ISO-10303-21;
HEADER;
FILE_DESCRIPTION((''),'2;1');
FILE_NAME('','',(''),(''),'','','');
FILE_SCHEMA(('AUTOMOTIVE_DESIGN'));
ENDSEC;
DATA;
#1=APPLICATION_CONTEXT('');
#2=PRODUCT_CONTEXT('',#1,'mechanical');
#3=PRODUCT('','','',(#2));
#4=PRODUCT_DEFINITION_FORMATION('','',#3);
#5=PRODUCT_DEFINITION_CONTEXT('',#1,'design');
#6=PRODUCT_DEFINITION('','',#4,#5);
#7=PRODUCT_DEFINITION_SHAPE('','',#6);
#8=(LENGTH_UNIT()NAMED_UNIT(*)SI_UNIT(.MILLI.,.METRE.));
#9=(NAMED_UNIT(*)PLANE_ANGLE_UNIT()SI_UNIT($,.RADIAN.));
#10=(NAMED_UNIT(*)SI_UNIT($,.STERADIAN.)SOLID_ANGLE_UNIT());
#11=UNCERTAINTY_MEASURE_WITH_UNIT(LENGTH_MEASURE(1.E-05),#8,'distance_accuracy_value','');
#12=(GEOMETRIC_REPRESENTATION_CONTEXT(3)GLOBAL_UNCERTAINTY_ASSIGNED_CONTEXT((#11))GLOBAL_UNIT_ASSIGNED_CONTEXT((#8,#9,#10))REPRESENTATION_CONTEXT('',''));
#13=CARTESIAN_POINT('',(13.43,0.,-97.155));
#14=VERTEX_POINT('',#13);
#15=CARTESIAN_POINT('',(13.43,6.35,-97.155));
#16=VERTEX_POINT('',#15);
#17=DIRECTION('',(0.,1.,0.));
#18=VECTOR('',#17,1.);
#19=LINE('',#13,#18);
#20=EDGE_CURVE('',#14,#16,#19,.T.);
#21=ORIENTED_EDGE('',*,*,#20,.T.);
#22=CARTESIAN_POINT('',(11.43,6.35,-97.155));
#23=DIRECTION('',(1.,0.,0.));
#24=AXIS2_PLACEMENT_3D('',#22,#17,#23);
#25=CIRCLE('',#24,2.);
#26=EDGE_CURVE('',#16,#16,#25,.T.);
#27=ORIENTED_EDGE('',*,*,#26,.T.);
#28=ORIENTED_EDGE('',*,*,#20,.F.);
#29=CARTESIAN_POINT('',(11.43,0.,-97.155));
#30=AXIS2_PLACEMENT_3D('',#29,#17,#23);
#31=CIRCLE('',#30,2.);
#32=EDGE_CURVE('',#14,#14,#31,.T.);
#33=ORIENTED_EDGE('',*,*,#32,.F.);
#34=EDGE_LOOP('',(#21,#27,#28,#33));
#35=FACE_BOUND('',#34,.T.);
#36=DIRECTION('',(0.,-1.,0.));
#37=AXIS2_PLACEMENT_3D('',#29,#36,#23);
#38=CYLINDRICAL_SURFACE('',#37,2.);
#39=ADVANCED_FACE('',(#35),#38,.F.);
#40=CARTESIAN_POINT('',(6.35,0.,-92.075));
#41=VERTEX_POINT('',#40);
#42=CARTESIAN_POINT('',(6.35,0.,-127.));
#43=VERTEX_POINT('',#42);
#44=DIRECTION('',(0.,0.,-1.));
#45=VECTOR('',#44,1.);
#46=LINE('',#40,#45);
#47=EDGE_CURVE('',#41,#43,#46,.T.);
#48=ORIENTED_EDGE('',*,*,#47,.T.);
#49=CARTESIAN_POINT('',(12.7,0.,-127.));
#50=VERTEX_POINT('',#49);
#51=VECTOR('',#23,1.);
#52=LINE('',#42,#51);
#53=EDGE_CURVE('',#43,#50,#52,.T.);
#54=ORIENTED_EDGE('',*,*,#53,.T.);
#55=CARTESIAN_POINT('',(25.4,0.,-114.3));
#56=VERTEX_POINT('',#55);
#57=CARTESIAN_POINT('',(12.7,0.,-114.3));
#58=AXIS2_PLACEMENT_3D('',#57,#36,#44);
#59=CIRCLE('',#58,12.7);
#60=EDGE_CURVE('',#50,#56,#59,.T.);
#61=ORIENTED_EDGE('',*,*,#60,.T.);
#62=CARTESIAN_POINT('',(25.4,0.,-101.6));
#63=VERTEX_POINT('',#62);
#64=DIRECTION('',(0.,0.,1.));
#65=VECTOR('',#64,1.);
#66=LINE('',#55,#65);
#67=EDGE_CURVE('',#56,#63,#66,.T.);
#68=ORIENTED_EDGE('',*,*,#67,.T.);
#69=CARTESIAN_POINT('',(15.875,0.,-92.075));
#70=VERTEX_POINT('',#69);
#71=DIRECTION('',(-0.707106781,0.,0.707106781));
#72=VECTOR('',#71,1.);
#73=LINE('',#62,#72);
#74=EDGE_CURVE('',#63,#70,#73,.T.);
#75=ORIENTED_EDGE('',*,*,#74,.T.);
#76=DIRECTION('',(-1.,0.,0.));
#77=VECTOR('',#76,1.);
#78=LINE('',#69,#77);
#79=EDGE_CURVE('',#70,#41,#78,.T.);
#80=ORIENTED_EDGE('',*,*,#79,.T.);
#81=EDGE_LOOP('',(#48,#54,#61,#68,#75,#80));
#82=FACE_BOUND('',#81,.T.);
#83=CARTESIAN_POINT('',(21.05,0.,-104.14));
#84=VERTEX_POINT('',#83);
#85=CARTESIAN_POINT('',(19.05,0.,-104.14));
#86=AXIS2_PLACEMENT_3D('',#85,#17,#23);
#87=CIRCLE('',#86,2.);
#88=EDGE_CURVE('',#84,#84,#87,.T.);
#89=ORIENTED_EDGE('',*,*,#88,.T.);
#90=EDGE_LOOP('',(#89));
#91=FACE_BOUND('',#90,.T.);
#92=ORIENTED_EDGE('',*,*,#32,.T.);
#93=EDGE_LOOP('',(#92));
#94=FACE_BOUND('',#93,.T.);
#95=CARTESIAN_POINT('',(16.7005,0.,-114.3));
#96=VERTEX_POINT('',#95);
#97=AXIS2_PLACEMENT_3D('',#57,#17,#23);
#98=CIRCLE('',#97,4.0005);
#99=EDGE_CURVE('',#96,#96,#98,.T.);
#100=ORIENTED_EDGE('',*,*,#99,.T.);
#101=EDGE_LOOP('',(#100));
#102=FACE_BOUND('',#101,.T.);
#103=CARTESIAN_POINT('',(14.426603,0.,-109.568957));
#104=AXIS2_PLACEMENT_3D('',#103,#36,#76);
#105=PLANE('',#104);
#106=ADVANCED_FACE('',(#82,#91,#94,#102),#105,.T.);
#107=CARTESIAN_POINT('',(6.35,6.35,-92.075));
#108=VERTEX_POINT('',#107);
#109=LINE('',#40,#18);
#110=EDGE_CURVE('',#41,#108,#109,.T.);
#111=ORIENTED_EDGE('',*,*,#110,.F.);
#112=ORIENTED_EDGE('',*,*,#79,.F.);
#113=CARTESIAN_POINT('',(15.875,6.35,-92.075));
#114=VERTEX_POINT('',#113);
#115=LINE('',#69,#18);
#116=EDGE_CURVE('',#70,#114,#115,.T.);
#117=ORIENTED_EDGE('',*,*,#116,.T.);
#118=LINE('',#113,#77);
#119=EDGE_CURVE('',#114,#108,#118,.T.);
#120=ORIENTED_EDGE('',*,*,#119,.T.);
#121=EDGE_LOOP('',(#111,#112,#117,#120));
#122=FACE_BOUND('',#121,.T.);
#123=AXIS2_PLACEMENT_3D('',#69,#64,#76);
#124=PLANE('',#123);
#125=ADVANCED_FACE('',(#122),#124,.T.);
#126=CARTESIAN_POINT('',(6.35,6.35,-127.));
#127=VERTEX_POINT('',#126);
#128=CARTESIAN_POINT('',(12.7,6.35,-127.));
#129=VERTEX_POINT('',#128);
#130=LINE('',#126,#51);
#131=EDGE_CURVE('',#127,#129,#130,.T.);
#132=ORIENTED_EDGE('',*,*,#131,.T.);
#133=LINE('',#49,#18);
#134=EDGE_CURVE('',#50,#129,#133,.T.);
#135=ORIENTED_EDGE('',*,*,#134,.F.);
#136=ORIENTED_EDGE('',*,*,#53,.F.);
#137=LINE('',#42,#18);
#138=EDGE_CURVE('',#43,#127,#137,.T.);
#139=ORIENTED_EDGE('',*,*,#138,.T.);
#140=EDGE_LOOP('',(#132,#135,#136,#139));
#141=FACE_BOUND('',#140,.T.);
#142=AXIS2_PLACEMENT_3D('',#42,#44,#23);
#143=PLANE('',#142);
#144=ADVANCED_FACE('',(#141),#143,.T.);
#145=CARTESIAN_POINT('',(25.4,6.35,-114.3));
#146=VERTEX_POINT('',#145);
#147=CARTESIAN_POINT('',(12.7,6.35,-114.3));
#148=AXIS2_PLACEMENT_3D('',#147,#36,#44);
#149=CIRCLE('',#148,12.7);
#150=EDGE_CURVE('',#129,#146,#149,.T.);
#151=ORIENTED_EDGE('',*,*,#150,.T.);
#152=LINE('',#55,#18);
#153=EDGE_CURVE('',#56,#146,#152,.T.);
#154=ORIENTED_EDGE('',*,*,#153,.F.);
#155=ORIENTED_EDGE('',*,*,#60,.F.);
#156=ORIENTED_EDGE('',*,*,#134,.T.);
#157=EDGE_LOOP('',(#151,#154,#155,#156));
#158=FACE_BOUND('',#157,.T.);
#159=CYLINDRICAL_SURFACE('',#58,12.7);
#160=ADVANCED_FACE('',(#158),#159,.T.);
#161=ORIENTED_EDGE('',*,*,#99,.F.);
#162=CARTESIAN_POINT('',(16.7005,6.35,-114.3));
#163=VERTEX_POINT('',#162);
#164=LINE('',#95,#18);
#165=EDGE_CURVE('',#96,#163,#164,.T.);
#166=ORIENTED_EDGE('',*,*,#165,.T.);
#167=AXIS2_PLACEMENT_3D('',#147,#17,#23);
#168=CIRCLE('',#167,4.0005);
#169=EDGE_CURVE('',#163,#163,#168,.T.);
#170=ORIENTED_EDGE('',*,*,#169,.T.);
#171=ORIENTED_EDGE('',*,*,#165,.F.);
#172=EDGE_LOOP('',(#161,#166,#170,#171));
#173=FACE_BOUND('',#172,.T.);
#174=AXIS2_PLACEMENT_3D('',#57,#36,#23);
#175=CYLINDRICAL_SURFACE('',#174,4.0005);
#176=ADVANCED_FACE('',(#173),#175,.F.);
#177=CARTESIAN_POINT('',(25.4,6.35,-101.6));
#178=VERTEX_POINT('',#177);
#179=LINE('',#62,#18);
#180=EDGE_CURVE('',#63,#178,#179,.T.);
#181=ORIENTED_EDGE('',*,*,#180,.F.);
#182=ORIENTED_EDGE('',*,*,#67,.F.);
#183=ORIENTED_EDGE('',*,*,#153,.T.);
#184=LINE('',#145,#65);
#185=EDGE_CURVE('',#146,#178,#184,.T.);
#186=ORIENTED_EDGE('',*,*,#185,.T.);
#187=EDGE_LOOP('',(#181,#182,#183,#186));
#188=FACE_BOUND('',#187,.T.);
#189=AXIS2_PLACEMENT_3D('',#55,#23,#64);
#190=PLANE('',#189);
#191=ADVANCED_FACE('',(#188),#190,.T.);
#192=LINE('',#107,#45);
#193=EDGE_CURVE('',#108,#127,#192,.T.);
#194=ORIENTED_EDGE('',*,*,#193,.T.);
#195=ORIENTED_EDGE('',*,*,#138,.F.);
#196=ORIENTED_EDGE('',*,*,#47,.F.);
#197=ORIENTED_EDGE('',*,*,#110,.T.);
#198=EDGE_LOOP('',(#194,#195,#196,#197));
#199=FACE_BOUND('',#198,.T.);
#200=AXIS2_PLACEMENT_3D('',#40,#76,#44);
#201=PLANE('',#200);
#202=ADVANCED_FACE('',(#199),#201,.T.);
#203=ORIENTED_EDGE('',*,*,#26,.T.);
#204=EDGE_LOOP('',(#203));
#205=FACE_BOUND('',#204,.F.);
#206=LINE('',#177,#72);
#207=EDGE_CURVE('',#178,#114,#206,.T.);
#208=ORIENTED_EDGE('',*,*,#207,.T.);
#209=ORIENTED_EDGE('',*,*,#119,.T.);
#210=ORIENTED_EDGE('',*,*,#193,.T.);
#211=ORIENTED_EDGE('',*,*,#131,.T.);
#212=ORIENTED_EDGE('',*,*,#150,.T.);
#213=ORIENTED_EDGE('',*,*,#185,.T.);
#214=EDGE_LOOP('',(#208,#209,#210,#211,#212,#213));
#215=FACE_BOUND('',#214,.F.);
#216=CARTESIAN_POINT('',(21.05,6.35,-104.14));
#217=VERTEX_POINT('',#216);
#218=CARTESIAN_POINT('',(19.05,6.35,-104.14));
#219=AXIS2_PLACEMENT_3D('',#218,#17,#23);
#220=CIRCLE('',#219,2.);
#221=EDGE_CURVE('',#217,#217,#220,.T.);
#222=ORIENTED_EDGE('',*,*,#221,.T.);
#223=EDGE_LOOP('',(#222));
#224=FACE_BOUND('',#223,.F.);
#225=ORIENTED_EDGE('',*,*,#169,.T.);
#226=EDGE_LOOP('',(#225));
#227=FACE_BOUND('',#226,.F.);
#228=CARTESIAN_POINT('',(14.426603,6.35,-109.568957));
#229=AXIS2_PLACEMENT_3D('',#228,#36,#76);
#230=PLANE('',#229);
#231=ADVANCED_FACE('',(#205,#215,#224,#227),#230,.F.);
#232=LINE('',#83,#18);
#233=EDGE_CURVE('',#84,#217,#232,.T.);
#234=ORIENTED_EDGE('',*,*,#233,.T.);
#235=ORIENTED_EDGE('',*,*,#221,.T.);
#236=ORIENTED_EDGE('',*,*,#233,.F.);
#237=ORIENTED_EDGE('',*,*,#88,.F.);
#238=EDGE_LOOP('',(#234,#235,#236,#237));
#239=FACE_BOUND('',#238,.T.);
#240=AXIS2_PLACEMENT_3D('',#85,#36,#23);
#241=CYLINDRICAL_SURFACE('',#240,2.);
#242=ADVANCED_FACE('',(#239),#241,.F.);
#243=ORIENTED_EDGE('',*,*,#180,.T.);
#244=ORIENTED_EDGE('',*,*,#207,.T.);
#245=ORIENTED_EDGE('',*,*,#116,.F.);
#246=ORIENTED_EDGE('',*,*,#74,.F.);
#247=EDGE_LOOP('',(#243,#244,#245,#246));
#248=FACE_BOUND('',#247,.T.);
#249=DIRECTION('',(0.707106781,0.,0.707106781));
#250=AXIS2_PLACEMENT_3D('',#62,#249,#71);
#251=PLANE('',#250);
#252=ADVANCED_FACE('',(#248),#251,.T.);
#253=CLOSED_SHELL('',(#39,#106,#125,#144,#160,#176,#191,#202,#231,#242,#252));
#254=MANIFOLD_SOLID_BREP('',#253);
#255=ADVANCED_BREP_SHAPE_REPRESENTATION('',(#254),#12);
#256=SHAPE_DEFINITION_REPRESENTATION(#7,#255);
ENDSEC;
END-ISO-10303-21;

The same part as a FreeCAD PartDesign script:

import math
import FreeCAD as App
import Part
import Sketcher
from FreeCAD import Vector
Q = App.Units.Quantity

doc = App.newDocument("Part")
body = doc.addObject("PartDesign::Body", "Body")

sketch1 = doc.addObject("Sketcher::SketchObject", "Sketch")
body.addObject(sketch1)
sketch1.AttachmentSupport = (doc.XZ_Plane, [""])
sketch1.MapMode = "FlatFace"
sketch1.addGeometry(Part.LineSegment(Vector(12.7, -127, 0), Vector(6.35, -127, 0)), False)
sketch1.addGeometry(Part.LineSegment(Vector(6.35, -127, 0), Vector(6.35, -92.075, 0)), False)
sketch1.addGeometry(Part.LineSegment(Vector(6.35, -92.075, 0), Vector(15.875, -92.075, 0)), False)
sketch1.addGeometry(Part.LineSegment(Vector(15.875, -92.075, 0), Vector(25.4, -101.6, 0)), False)
sketch1.addGeometry(Part.LineSegment(Vector(25.4, -101.6, 0), Vector(25.4, -114.3, 0)), False)
sketch1.addGeometry(Part.ArcOfCircle(Part.Circle(Vector(12.7, -114.3, 0), Vector(0, 0, 1), 12.7), math.radians(-90), math.radians(0)), False)
sketch1.addGeometry(Part.Circle(Vector(19.05, -104.14, 0), Vector(0, 0, 1), 2), False)
sketch1.addGeometry(Part.Circle(Vector(11.43, -97.155, 0), Vector(0, 0, 1), 2), False)
sketch1.addGeometry(Part.Circle(Vector(12.7, -114.3, 0), Vector(0, 0, 1), 4.0005), False)
sketch1.addConstraint(Sketcher.Constraint("Coincident", 0, 2, 1, 1))
sketch1.addConstraint(Sketcher.Constraint("Coincident", 1, 2, 2, 1))
sketch1.addConstraint(Sketcher.Constraint("Coincident", 2, 2, 3, 1))
sketch1.addConstraint(Sketcher.Constraint("Coincident", 3, 2, 4, 1))
sketch1.addConstraint(Sketcher.Constraint("Tangent", 4, 2, 5, 2))
sketch1.addConstraint(Sketcher.Constraint("Tangent", 5, 1, 0, 1))
sketch1.addConstraint(Sketcher.Constraint("Horizontal", 0))
sketch1.addConstraint(Sketcher.Constraint("Vertical", 1))
sketch1.addConstraint(Sketcher.Constraint("Horizontal", 2))
sketch1.addConstraint(Sketcher.Constraint("Vertical", 4))
sketch1.addConstraint(Sketcher.Constraint("Coincident", 8, 3, 5, 3))
sketch1.addConstraint(Sketcher.Constraint("Equal", 6, 7))
sketch1.addConstraint(Sketcher.Constraint("Radius", 5, Q("0.5 in")))
sketch1.addConstraint(Sketcher.Constraint("Diameter", 8, Q("0.315 in")))
sketch1.addConstraint(Sketcher.Constraint("DistanceY", 4, 2, 4, 1, Q("0.5 in")))
sketch1.addConstraint(Sketcher.Constraint("DistanceY", 0, 2, -1, 1, Q("5 in")))
sketch1.addConstraint(Sketcher.Constraint("DistanceX", -1, 1, 3, 2, Q("1 in")))
sketch1.addConstraint(Sketcher.Constraint("Angle", 3, Q("-45 deg")))
sketch1.addConstraint(Sketcher.Constraint("DistanceX", 0, 2, 0, 1, Q("0.25 in")))
sketch1.addConstraint(Sketcher.Constraint("DistanceY", 6, 3, -1, 1, Q("4.1 in")))
sketch1.addConstraint(Sketcher.Constraint("DistanceX", 7, 3, 6, 3, Q("0.3 in")))
sketch1.addConstraint(Sketcher.Constraint("DistanceX", 0, 2, 6, 3, Q("0.5 in")))
sketch1.addConstraint(Sketcher.Constraint("DistanceY", 7, 3, 1, 2, Q("0.2 in")))
sketch1.addConstraint(Sketcher.Constraint("Diameter", 6, Q("4 mm")))
sketch1.addConstraint(Sketcher.Constraint("DistanceX", 2, 1, 2, 2, Q("0.375 in")))
pad1 = doc.addObject("PartDesign::Pad", "Pad")
body.addObject(pad1)
pad1.Profile = sketch1
pad1.Length = Q("0.25 in")
pad1.Reversed = True

doc.recompute()
